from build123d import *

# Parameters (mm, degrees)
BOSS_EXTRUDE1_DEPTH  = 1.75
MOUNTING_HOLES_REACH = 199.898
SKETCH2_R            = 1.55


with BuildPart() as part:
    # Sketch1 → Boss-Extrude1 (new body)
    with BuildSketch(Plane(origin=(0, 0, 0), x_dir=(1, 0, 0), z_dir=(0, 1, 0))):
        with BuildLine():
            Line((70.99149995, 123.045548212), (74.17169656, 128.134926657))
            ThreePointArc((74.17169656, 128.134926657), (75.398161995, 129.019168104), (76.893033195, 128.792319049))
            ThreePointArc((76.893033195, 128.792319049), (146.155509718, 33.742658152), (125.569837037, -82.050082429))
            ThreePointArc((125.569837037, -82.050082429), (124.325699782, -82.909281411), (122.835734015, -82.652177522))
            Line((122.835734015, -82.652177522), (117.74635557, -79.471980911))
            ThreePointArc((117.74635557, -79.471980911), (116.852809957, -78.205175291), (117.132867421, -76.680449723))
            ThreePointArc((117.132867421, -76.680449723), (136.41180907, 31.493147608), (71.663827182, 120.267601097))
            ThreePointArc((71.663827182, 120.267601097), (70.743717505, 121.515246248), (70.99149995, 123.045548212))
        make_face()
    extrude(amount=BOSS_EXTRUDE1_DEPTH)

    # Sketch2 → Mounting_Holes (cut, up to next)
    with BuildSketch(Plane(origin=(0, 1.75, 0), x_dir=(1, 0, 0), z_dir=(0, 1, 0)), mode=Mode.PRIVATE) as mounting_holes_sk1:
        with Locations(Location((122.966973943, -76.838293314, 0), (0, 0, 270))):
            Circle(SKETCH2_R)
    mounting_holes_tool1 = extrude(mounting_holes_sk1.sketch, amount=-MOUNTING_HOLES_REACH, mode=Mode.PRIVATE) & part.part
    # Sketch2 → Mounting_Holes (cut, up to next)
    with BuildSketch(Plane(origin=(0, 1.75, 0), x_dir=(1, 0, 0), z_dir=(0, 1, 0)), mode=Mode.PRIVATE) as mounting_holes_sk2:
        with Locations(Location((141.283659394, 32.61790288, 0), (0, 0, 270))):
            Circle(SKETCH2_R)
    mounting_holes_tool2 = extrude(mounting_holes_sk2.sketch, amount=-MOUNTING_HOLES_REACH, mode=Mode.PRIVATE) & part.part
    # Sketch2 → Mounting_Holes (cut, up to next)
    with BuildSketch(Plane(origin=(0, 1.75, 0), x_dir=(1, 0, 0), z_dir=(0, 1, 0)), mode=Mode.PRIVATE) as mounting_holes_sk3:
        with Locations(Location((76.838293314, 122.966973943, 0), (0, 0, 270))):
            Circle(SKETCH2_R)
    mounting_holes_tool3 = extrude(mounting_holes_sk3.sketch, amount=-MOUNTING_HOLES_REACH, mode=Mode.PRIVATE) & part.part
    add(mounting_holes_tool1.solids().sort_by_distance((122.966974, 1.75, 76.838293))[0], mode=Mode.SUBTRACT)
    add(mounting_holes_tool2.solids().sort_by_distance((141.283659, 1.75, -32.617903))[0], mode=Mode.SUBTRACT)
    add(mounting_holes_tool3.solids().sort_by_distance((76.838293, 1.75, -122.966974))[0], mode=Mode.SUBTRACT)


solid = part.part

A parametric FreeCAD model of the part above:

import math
import FreeCAD as App
import Part
import Sketcher
Q = App.Units.Quantity

doc = App.newDocument("Part")
body = doc.addObject("PartDesign::Body", "Body")

sketch1 = body.newObject("Sketcher::SketchObject", "Sketch")
sketch1.AttachmentSupport = (doc.getObject("XZ_Plane"), [""])
sketch1.MapMode = "FlatFace"
sketch1.addGeometry([
    Part.LineSegment(App.Vector(74.171697, -128.134927, 0), App.Vector(70.9915, -123.045548, 0)),
    Part.ArcOfCircle(Part.Circle(App.Vector(72.687596, -121.98571, 0), App.Vector(0, 0, 1), 2), math.radians(120.789436), math.radians(212)),
    Part.ArcOfCircle(Part.Circle(App.Vector(0, 0, 0), App.Vector(0, 0, 1), 140), math.radians(-59.210564), math.radians(33.210564)),
    Part.ArcOfCircle(Part.Circle(App.Vector(118.806194, 77.775885, 0), App.Vector(0, 0, 1), 2), math.radians(122), math.radians(213.210564)),
    Part.LineSegment(App.Vector(117.746356, 79.471981, 0), App.Vector(122.835734, 82.652178, 0)),
    Part.ArcOfCircle(Part.Circle(App.Vector(123.895573, 80.956081, 0), App.Vector(0, 0, 1), 2), math.radians(33.161481), math.radians(122)),
    Part.ArcOfCircle(Part.Circle(App.Vector(0, 0, 0), App.Vector(0, 0, 1), 150), math.radians(-59.16148), math.radians(33.16148)),
    Part.ArcOfCircle(Part.Circle(App.Vector(75.867793, -127.075088, 0), App.Vector(0, 0, 1), 2), math.radians(-148), math.radians(-59.16148)),
], False)
sketch1.addConstraint([
    Sketcher.Constraint("Tangent", 0, 2, 1, 2),
    Sketcher.Constraint("Tangent", 1, 1, 2, 1),
    Sketcher.Constraint("Tangent", 2, 2, 3, 2),
    Sketcher.Constraint("Tangent", 3, 1, 4, 1),
    Sketcher.Constraint("Tangent", 4, 2, 5, 2),
    Sketcher.Constraint("Tangent", 5, 1, 6, 2),
    Sketcher.Constraint("Tangent", 6, 1, 7, 2),
    Sketcher.Constraint("Tangent", 7, 1, 0, 1),
    Sketcher.Constraint("Coincident", 2, 3, -1, 1),
    Sketcher.Constraint("Coincident", 6, 3, -1, 1),
    Sketcher.Constraint("Equal", 1, 3),
    Sketcher.Constraint("Equal", 3, 5),
    Sketcher.Constraint("Equal", 5, 7),
    Sketcher.Constraint("Perpendicular", 0, 4),
    Sketcher.Constraint("Equal", 0, 4),
    Sketcher.Constraint("Radius", 1, Q("2 mm")),
    Sketcher.Constraint("Radius", 2, Q("140 mm")),
    Sketcher.Constraint("Radius", 6, Q("150 mm")),
    Sketcher.Constraint("Angle", 0, Q("122 deg")),
    Sketcher.Constraint("DistanceY", 5, 3, 5, 1, Q("1.094001 mm")),
])
pad1 = body.newObject("PartDesign::Pad", "Pad")
pad1.Profile = sketch1
pad1.Length = 1.75
pad1.Reversed = True

sketch2 = body.newObject("Sketcher::SketchObject", "Sketch001")
sketch2.AttachmentSupport = (doc.getObject("XZ_Plane"), [""])
sketch2.MapMode = "FlatFace"
sketch2.AttachmentOffset = App.Placement(App.Vector(0, 0, -1.75), App.Rotation())
sketch2.addGeometry(Part.Circle(App.Vector(123, 76.8, 0), App.Vector(0, 0, 1), 1.6), False)
sketch2.addConstraint([
    Sketcher.Constraint("Diameter", 0, Q("3.1 mm")),
    Sketcher.Constraint("DistanceX", -1, 1, 0, 3, Q("122.966974 mm")),
    Sketcher.Constraint("DistanceY", -1, 1, 0, 3, Q("76.838293 mm")),
])
pocket1 = body.newObject("PartDesign::Pocket", "Pocket")
pocket1.Profile = sketch2
pocket1.Type = "UpToFirst"
pocket1.Reversed = True

sketch3 = body.newObject("Sketcher::SketchObject", "Sketch002")
sketch3.AttachmentSupport = (doc.getObject("XZ_Plane"), [""])
sketch3.MapMode = "FlatFace"
sketch3.AttachmentOffset = App.Placement(App.Vector(0, 0, -1.75), App.Rotation())
sketch3.addGeometry(Part.Circle(App.Vector(141.3, -32.6, 0), App.Vector(0, 0, 1), 1.6), False)
sketch3.addConstraint([
    Sketcher.Constraint("Diameter", 0, Q("3.1 mm")),
    Sketcher.Constraint("DistanceX", -1, 1, 0, 3, Q("141.283659 mm")),
    Sketcher.Constraint("DistanceY", 0, 3, -1, 1, Q("32.617903 mm")),
])
pocket2 = body.newObject("PartDesign::Pocket", "Pocket001")
pocket2.Profile = sketch3
pocket2.Type = "UpToFirst"
pocket2.Reversed = True

sketch4 = body.newObject("Sketcher::SketchObject", "Sketch003")
sketch4.AttachmentSupport = (doc.getObject("XZ_Plane"), [""])
sketch4.MapMode = "FlatFace"
sketch4.AttachmentOffset = App.Placement(App.Vector(0, 0, -1.75), App.Rotation())
sketch4.addGeometry(Part.Circle(App.Vector(76.8, -123, 0), App.Vector(0, 0, 1), 1.6), False)
sketch4.addConstraint([
    Sketcher.Constraint("Diameter", 0, Q("3.1 mm")),
    Sketcher.Constraint("DistanceX", -1, 1, 0, 3, Q("76.838293 mm")),
    Sketcher.Constraint("DistanceY", 0, 3, -1, 1, Q("122.966974 mm")),
])
pocket3 = body.newObject("PartDesign::Pocket", "Pocket002")
pocket3.Profile = sketch4
pocket3.Type = "UpToFirst"
pocket3.Reversed = True

doc.recompute()
